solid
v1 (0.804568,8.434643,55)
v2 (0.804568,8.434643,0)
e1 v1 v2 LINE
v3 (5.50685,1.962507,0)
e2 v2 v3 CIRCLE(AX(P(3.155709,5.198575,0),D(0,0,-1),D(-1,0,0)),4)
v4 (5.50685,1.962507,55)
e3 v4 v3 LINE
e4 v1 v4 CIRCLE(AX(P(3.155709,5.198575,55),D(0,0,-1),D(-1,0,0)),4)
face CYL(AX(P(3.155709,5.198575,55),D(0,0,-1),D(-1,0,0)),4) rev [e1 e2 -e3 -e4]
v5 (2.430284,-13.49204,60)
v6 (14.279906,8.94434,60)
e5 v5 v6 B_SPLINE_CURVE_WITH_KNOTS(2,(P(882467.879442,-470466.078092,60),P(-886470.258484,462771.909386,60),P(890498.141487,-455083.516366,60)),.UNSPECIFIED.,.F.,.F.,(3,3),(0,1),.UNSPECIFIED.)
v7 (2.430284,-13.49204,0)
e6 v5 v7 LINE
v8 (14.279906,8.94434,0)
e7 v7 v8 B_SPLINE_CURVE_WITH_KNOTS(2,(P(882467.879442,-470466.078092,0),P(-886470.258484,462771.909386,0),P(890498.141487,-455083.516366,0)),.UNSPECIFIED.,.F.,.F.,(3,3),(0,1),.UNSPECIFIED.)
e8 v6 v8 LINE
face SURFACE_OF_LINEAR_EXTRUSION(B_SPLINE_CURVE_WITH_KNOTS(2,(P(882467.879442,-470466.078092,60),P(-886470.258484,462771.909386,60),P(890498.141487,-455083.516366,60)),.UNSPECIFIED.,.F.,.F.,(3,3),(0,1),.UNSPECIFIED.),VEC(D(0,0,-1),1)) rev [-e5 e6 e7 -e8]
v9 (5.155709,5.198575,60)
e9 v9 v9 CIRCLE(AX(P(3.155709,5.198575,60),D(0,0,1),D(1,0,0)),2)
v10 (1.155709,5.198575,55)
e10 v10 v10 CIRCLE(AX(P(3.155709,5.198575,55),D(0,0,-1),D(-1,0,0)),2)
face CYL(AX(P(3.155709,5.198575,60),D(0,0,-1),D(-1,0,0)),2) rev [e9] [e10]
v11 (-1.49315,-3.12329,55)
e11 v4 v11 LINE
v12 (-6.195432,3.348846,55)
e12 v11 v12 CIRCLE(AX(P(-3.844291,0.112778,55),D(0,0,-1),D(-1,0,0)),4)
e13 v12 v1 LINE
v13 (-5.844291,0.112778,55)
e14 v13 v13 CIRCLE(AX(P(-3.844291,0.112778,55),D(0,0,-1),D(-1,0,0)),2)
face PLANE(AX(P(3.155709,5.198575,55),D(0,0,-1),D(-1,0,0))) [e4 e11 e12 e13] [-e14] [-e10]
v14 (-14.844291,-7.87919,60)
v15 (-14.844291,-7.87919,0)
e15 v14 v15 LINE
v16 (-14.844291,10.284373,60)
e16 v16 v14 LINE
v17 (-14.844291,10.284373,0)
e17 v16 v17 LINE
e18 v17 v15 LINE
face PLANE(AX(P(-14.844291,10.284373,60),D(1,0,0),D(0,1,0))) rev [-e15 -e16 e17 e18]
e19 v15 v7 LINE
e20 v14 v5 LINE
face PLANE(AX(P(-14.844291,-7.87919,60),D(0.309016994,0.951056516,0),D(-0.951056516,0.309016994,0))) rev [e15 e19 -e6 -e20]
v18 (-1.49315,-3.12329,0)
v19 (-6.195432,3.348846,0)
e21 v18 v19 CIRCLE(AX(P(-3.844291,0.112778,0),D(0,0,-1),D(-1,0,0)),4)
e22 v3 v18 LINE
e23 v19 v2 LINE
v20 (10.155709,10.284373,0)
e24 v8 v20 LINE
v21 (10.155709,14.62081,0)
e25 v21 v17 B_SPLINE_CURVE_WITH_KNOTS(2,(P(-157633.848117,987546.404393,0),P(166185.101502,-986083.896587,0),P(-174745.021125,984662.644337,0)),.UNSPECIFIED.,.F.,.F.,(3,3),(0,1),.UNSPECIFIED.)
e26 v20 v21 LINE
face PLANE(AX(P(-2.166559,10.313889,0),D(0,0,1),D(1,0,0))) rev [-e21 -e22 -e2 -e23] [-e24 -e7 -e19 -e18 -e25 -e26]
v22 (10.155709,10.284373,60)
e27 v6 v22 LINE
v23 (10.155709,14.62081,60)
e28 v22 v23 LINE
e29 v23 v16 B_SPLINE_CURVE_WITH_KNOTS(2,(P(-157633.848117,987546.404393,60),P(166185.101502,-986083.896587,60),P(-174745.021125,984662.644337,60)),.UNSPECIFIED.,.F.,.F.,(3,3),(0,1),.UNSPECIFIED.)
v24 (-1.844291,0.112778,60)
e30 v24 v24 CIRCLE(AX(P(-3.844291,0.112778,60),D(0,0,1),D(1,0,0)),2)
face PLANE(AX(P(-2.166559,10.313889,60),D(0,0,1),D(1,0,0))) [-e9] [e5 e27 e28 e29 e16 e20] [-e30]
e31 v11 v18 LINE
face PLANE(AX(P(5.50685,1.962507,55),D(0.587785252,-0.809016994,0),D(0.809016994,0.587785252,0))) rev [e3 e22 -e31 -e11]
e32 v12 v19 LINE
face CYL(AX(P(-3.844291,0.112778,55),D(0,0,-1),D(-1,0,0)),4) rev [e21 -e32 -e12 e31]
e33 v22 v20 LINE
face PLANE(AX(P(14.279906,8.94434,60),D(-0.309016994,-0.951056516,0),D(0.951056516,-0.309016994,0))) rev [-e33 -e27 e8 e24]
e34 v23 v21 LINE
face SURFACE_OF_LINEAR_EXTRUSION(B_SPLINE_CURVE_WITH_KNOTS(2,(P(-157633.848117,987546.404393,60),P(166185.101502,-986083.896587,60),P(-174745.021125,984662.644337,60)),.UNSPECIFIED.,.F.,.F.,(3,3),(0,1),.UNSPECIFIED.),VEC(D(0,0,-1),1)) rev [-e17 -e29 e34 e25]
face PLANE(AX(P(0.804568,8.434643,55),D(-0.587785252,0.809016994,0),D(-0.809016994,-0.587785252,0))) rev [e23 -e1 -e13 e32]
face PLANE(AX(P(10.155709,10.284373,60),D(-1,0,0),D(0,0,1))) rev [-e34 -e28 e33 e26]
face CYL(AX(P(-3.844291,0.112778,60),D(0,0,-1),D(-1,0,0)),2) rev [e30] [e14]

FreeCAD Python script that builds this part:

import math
import FreeCAD as App
import Part
import Sketcher
from FreeCAD import Vector
Q = App.Units.Quantity

doc = App.newDocument("Part")
params = doc.addObject("Spreadsheet::Sheet", "Params")
for row, (alias, value) in enumerate([
    ("sketch1_diameter", "4 mm"),
    ("pad1_length", "60 mm"),
    ("sketch2_radius", "4 mm"),
    ("pocket1_length", "55 mm"),
], start=1):
    params.set(f"A{row}", alias)
    params.set(f"B{row}", "=" + value)
    params.setAlias(f"B{row}", alias)

body = doc.addObject("PartDesign::Body", "Body")

# Sketch on XY plane
sketch1 = body.newObject("Sketcher::SketchObject", "Sketch")
sketch1.AttachmentSupport = (doc.getObject("XY_Plane"), [""])
sketch1.MapMode = "FlatFace"
sketch1.addGeometry([
    Part.LineSegment(Vector(10.155709, 10.284373, 0), Vector(10.155709, 14.62081, 0)),  # 0
    Part.BSplineCurve([Vector(10.155709, 14.62081, 0), Vector(-1.633652, 8.235919, 0), Vector(-14.844291, 10.284373, 0)], [3, 3], [0, 1], False, 2, [1, 1, 1], False),  # 1
    Part.LineSegment(Vector(-14.844291, 10.284373, 0), Vector(-14.844291, -7.87919, 0)),  # 2
    Part.LineSegment(Vector(-14.844291, -7.87919, 0), Vector(2.430284, -13.49204, 0)),  # 3
    Part.BSplineCurve([Vector(2.430284, -13.49204, 0), Vector(4.564401, -0.294968, 0), Vector(14.279906, 8.94434, 0)], [3, 3], [0, 1], False, 2, [1, 1, 1], False),  # 4
    Part.LineSegment(Vector(14.279906, 8.94434, 0), Vector(10.155709, 10.284373, 0)),  # 5
    Part.Circle(Vector(-3.844291, 0.112778, 0), Vector(0, 0, 1), 2),  # 6
    Part.Circle(Vector(3.155709, 5.198575, 0), Vector(0, 0, 1), 2),  # 7
], False)
sketch1.addConstraint([
    Sketcher.Constraint("Block", 1),
    Sketcher.Constraint("Block", 4),
    Sketcher.Constraint("Coincident", 0, 2, 1, 1),
    Sketcher.Constraint("Coincident", 1, 2, 2, 1),
    Sketcher.Constraint("Coincident", 2, 2, 3, 1),
    Sketcher.Constraint("Coincident", 3, 2, 4, 1),
    Sketcher.Constraint("Coincident", 4, 2, 5, 1),
    Sketcher.Constraint("Coincident", 5, 2, 0, 1),
    Sketcher.Constraint("Vertical", 0),
    Sketcher.Constraint("Vertical", 2),
    Sketcher.Constraint("Equal", 6, 7),
    Sketcher.Constraint("Parallel", 3, 5),
    Sketcher.Constraint("Diameter", 6, Q("4 mm")),
    Sketcher.Constraint("Angle", 3, Q("-18 deg")),
    Sketcher.Constraint("DistanceX", 6, 3, 7, 3, Q("7 mm")),
    Sketcher.Constraint("DistanceX", 7, 3, 0, 2, Q("7 mm")),
    Sketcher.Constraint("DistanceY", -1, 1, 6, 3, Q("0.112778 mm")),
    Sketcher.Constraint("DistanceY", -1, 1, 7, 3, Q("5.198575 mm")),
])
sketch1.setExpression("Constraints[12]", "Params.sketch1_diameter")
pad1 = body.newObject("PartDesign::Pad", "Pad")
pad1.Profile = sketch1
pad1.setExpression("Length", "Params.pad1_length")

# Sketch on XY plane
sketch2 = body.newObject("Sketcher::SketchObject", "Sketch001")
sketch2.AttachmentSupport = (doc.getObject("XY_Plane"), [""])
sketch2.MapMode = "FlatFace"
sketch2.addGeometry([
    Part.LineSegment(Vector(-6.2, 3.3, 0), Vector(0.8, 8.4, 0)),
    Part.ArcOfCircle(Part.Circle(Vector(3.2, 5.2, 0), Vector(0, 0, 1), 4), math.radians(-54), math.radians(126)),
    Part.LineSegment(Vector(5.5, 2, 0), Vector(-1.5, -3.1, 0)),
    Part.ArcOfCircle(Part.Circle(Vector(-3.8, 0.1, 0), Vector(0, 0, 1), 4), math.radians(126), math.radians(306)),
], False)
sketch2.addConstraint([
    Sketcher.Constraint("Tangent", 0, 2, 1, 2),
    Sketcher.Constraint("Tangent", 1, 1, 2, 1),
    Sketcher.Constraint("Tangent", 2, 2, 3, 2),
    Sketcher.Constraint("Tangent", 3, 1, 0, 1),
    Sketcher.Constraint("Equal", 1, 3),
    Sketcher.Constraint("Radius", 1, Q("4 mm")),
    Sketcher.Constraint("Angle", 0, Q("36 deg")),
    Sketcher.Constraint("DistanceX", 3, 3, 1, 3, Q("7 mm")),
    Sketcher.Constraint("DistanceX", -1, 1, 1, 3, Q("3.155709 mm")),
    Sketcher.Constraint("DistanceY", 2, 2, -1, 1, Q("3.12329 mm")),
])
sketch2.setExpression("Constraints[5]", "Params.sketch2_radius")
pocket1 = body.newObject("PartDesign::Pocket", "Pocket")
pocket1.Profile = sketch2
pocket1.setExpression("Length", "Params.pocket1_length")
pocket1.Reversed = True

doc.recompute()
